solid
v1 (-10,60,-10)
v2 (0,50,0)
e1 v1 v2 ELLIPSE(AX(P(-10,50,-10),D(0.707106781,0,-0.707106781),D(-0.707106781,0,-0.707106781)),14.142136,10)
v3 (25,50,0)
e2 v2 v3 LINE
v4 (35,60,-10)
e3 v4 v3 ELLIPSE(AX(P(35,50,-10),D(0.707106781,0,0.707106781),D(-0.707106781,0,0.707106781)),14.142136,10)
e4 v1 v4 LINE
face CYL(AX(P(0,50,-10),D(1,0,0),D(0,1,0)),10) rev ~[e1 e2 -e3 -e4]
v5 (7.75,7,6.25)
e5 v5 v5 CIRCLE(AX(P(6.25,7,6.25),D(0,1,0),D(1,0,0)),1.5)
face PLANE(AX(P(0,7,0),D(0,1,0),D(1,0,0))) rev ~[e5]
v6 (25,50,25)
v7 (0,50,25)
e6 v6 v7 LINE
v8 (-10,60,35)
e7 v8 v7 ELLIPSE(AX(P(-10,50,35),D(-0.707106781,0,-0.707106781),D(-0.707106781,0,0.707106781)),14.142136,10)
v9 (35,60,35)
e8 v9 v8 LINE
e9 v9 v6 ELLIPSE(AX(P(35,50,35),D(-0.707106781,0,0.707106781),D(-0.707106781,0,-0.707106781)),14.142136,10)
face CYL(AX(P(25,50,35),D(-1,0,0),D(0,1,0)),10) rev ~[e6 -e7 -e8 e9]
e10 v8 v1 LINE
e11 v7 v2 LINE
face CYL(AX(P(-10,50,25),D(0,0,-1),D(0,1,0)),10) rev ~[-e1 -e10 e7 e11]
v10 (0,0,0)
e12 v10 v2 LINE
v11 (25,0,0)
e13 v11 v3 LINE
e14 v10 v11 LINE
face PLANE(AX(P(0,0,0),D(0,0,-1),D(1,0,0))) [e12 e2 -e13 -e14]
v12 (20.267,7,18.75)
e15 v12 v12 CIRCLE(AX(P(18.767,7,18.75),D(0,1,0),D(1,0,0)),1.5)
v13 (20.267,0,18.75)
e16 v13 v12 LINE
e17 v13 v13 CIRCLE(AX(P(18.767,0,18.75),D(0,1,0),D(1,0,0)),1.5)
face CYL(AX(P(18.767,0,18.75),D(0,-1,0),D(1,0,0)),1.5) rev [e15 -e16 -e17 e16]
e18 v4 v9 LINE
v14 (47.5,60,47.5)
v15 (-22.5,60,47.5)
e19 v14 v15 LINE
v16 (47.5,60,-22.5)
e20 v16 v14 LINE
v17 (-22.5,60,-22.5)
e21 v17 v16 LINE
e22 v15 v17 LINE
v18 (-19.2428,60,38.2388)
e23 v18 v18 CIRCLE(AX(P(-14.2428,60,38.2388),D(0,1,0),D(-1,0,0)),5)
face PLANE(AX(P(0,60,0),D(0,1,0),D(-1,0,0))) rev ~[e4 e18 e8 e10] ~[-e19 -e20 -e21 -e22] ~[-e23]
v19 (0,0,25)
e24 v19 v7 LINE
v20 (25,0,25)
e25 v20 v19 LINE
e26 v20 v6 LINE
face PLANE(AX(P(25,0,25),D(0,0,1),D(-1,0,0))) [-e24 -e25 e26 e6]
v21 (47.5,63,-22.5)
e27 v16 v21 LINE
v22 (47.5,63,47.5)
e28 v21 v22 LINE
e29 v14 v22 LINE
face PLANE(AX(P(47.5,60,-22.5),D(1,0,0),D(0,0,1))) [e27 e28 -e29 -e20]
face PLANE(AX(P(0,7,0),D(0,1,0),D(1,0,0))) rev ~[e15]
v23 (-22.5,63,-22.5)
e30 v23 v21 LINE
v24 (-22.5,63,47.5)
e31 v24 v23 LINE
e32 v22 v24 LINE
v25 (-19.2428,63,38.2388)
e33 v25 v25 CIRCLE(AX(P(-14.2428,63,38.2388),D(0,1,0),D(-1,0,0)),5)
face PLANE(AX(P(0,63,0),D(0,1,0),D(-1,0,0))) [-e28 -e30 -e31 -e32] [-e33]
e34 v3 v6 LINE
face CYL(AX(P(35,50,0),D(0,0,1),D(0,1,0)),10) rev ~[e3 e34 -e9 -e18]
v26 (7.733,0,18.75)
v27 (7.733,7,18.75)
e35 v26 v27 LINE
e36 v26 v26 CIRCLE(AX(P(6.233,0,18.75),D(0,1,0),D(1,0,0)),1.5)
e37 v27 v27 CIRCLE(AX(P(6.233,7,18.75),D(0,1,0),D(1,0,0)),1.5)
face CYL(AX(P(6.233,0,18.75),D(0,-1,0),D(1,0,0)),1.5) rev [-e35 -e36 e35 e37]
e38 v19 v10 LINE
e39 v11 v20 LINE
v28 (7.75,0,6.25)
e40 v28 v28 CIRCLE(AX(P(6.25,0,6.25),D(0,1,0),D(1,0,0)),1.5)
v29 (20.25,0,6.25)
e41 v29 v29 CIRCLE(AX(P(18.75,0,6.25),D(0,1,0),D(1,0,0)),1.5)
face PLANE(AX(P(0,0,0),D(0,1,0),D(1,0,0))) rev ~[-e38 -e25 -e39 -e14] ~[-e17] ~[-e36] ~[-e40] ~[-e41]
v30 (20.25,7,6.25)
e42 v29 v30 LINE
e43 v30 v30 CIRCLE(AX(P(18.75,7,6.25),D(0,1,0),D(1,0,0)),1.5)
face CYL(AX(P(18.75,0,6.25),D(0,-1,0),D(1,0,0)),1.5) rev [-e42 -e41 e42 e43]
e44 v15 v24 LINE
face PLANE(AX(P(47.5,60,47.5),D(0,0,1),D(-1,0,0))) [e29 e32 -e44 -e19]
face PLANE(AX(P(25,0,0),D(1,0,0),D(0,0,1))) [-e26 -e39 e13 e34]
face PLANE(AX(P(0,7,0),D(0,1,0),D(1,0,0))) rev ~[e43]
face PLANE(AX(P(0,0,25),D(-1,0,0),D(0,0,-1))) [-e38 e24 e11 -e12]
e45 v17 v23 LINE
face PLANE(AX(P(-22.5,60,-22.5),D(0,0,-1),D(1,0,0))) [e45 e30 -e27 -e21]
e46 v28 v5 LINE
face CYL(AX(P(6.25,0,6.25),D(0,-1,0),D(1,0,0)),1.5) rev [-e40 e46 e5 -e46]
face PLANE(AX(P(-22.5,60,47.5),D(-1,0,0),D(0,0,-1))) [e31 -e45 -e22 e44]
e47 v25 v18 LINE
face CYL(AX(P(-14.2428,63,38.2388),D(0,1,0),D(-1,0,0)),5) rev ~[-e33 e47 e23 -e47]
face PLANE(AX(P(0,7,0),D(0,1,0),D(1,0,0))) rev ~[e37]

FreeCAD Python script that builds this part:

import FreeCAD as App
import Part
import Sketcher


def edges_at(feature, points):
    """Names of the edges that pass closest to the given points."""
    edges = feature.Shape.Edges
    near = lambda p: min(range(len(edges)), key=lambda i: edges[i].distToShape(Part.Vertex(*p))[0])
    return sorted({f"Edge{near(p) + 1}" for p in points})


def add_polygon(sketch, points):
    """Adds a closed chain of lines whose ends are joined by coincident constraints."""
    first, n = sketch.GeometryCount, len(points)
    for a, b in zip(points, points[1:] + points[:1]):
        sketch.addGeometry(Part.LineSegment(App.Vector(*a, 0), App.Vector(*b, 0)), False)
    for i in range(n):
        sketch.addConstraint(Sketcher.Constraint("Coincident", first + i, 2, first + (i + 1) % n, 1))

doc = App.newDocument("Part")
body = doc.addObject("PartDesign::Body", "Body")

# Sketch on XZ plane
sketch1 = body.newObject("Sketcher::SketchObject", "Sketch")
sketch1.AttachmentSupport = (doc.getObject("XZ_Plane"), [""])
sketch1.MapMode = "FlatFace"
add_polygon(sketch1, [(25, 0), (0, 0), (0, 25), (25, 25)])  # lines 0-3
sketch1.addConstraint(Sketcher.Constraint("Horizontal", 0))
sketch1.addConstraint(Sketcher.Constraint("Vertical", 1))
sketch1.addConstraint(Sketcher.Constraint("Horizontal", 2))
sketch1.addConstraint(Sketcher.Constraint("Vertical", 3))
sketch1.addConstraint(Sketcher.Constraint("Coincident", 0, 2, -1, 1))
sketch1.addConstraint(Sketcher.Constraint("Equal", 2, 1))
sketch1.addConstraint(Sketcher.Constraint("DistanceX", 0, 2, 0, 1, 25.0))
pad1 = body.newObject("PartDesign::Pad", "Pad")
pad1.Profile = sketch1
pad1.Length = 60
pad1.Reversed = True

# Sketch on XZ plane
sketch2 = body.newObject("Sketcher::SketchObject", "Sketch001")
sketch2.AttachmentSupport = (doc.getObject("XZ_Plane"), [""])
sketch2.MapMode = "FlatFace"
sketch2.AttachmentOffset = App.Placement(App.Vector(0, 0, -60), App.Rotation())
add_polygon(sketch2, [(-22, 48), (48, 48), (48, -22), (-22, -22)])  # lines 0-3
sketch2.addConstraint(Sketcher.Constraint("Horizontal", 0))
sketch2.addConstraint(Sketcher.Constraint("Vertical", 1))
sketch2.addConstraint(Sketcher.Constraint("Horizontal", 2))
sketch2.addConstraint(Sketcher.Constraint("Vertical", 3))
sketch2.addConstraint(Sketcher.Constraint("Equal", 2, 1))
sketch2.addConstraint(Sketcher.Constraint("DistanceX", 0, 1, 0, 2, 70.0))
sketch2.addConstraint(Sketcher.Constraint("DistanceX", -1, 1, 0, 2, 47.5))
sketch2.addConstraint(Sketcher.Constraint("DistanceY", -1, 1, 0, 2, 47.5))
pad2 = body.newObject("PartDesign::Pad", "Pad001")
pad2.Profile = sketch2
pad2.Length = 3
pad2.Reversed = True
doc.recompute()

fillet = body.newObject("PartDesign::Fillet", "Fillet")
fillet.Base = (pad2, edges_at(pad2, [
    (12.5, 60, 25),
    (25, 60, 12.5),
    (0, 60, 12.5),
    (12.5, 60, 0),
]))
fillet.Radius = 10

# Sketch on XZ plane
sketch3 = body.newObject("Sketcher::SketchObject", "Sketch002")
sketch3.AttachmentSupport = (doc.getObject("XZ_Plane"), [""])
sketch3.MapMode = "FlatFace"
sketch3.AttachmentOffset = App.Placement(App.Vector(0, 0, -63), App.Rotation())
sketch3.addGeometry(Part.Circle(App.Vector(-14, 38, 0), App.Vector(0, 0, 1), 5), False)
sketch3.addConstraint(Sketcher.Constraint("Diameter", 0, 10.0))
sketch3.addConstraint(Sketcher.Constraint("DistanceX", 0, 3, -1, 1, 14.2428))
sketch3.addConstraint(Sketcher.Constraint("DistanceY", -1, 1, 0, 3, 38.2388))
pocket1 = body.newObject("PartDesign::Pocket", "Pocket")
pocket1.Profile = sketch3
pocket1.Length = 30
pocket1.Reversed = True

# Sketch on XZ plane
sketch4 = body.newObject("Sketcher::SketchObject", "Sketch003")
sketch4.AttachmentSupport = (doc.getObject("XZ_Plane"), [""])
sketch4.MapMode = "FlatFace"
sketch4.addGeometry(Part.Circle(App.Vector(18.8, 6.2, 0), App.Vector(0, 0, 1), 1.5), False)
sketch4.addGeometry(Part.Circle(App.Vector(18.8, 18.8, 0), App.Vector(0, 0, 1), 1.5), False)
sketch4.addGeometry(Part.Circle(App.Vector(6.2, 6.2, 0), App.Vector(0, 0, 1), 1.5), False)
sketch4.addGeometry(Part.Circle(App.Vector(6.2, 18.8, 0), App.Vector(0, 0, 1), 1.5), False)
sketch4.addConstraint(Sketcher.Constraint("Equal", 0, 1))
sketch4.addConstraint(Sketcher.Constraint("Equal", 1, 2))
sketch4.addConstraint(Sketcher.Constraint("Equal", 2, 3))
sketch4.addConstraint(Sketcher.Constraint("Horizontal", 0, 3, 2, 3))
sketch4.addConstraint(Sketcher.Constraint("Horizontal", 1, 3, 3, 3))
sketch4.addConstraint(Sketcher.Constraint("Diameter", 0, 3.0))
sketch4.addConstraint(Sketcher.Constraint("DistanceY", 0, 3, 1, 3, 12.5))
sketch4.addConstraint(Sketcher.Constraint("DistanceX", 2, 3, 0, 3, 12.5))
sketch4.addConstraint(Sketcher.Constraint("DistanceY", -1, 1, 0, 3, 6.25))
sketch4.addConstraint(Sketcher.Constraint("DistanceX", -1, 1, 2, 3, 6.25))
sketch4.addConstraint(Sketcher.Constraint("DistanceX", -1, 1, 1, 3, 18.767))
sketch4.addConstraint(Sketcher.Constraint("DistanceX", -1, 1, 3, 3, 6.233))
pocket2 = body.newObject("PartDesign::Pocket", "Pocket001")
pocket2.Profile = sketch4
pocket2.Length = 7

doc.recompute()
